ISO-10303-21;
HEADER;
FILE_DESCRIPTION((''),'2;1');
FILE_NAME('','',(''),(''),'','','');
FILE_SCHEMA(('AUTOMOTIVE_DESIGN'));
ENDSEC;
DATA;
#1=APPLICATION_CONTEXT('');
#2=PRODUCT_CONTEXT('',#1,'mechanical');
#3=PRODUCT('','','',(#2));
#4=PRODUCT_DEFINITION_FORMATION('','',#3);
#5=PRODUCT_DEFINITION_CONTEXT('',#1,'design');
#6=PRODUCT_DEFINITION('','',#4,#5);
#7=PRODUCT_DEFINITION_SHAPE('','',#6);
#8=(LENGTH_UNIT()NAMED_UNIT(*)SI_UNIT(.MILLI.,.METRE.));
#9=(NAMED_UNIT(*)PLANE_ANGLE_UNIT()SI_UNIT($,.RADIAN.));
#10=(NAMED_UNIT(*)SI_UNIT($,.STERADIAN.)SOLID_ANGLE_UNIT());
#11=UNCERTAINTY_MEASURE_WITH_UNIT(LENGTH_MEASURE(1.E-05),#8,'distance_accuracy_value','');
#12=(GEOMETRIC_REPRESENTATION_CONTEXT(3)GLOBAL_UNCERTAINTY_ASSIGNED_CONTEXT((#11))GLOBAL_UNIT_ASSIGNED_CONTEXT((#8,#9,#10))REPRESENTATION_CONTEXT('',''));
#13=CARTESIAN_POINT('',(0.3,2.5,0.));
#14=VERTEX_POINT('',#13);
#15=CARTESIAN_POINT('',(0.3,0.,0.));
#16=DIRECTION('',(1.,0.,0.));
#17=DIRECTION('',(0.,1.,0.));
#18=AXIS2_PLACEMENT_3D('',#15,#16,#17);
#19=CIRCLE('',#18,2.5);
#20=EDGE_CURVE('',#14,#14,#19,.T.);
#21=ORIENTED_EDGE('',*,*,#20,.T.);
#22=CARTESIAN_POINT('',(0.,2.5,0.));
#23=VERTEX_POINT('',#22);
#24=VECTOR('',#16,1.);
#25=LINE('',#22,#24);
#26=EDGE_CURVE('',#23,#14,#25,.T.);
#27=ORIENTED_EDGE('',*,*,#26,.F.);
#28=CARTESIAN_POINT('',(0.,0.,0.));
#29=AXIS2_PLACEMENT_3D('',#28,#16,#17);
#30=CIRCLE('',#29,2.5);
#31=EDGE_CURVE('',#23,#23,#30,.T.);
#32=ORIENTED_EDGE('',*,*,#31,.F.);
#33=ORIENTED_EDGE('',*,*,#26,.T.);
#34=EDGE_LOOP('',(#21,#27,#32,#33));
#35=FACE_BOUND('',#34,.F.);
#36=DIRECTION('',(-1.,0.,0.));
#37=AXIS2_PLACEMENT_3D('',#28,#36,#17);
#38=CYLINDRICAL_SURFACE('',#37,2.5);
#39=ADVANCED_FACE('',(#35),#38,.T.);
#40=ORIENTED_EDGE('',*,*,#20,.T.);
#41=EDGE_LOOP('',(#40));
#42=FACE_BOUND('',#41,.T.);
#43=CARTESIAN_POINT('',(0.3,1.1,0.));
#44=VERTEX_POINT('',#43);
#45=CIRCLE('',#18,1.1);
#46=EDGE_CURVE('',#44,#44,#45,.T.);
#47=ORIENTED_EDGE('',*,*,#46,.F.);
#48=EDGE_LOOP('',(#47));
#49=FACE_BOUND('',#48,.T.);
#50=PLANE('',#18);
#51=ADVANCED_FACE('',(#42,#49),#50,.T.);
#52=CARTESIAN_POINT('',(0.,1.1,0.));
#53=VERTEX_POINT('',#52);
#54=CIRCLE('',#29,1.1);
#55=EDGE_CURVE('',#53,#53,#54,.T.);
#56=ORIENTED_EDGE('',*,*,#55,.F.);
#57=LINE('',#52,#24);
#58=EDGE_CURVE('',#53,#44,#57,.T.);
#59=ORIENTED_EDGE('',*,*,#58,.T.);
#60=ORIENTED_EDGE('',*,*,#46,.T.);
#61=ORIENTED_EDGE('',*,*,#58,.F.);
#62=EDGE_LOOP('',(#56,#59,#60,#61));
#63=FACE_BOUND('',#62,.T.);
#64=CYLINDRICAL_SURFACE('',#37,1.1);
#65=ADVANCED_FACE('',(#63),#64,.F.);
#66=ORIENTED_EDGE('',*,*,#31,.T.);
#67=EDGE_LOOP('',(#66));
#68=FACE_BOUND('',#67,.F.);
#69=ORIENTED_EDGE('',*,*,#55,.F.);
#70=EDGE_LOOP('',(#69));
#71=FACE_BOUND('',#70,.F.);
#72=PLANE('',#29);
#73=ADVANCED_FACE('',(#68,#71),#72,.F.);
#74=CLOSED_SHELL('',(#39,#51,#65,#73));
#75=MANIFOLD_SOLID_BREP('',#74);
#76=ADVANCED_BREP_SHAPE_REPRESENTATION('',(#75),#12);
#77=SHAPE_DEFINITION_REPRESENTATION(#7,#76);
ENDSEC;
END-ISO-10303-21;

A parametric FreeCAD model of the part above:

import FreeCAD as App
import Part
import Sketcher
from FreeCAD import Vector
Q = App.Units.Quantity

doc = App.newDocument("Part")
params = doc.addObject("Spreadsheet::Sheet", "Params")
for row, (alias, value) in enumerate([
    ("sketch1_diameter", "5 mm"),
    ("sketch1_diameter2", "2.2 mm"),
    ("pad1_length", "0.3 mm"),
], start=1):
    params.set(f"A{row}", alias)
    params.set(f"B{row}", "=" + value)
    params.setAlias(f"B{row}", alias)

body = doc.addObject("PartDesign::Body", "Body")

# Sketch on YZ plane
sketch1 = body.newObject("Sketcher::SketchObject", "Sketch")
sketch1.AttachmentSupport = (doc.getObject("YZ_Plane"), [""])
sketch1.MapMode = "FlatFace"
sketch1.addGeometry(Part.Circle(Vector(0, 0, 0), Vector(0, 0, 1), 2.5), False)
sketch1.addGeometry(Part.Circle(Vector(0, 0, 0), Vector(0, 0, 1), 1.1), False)
sketch1.addConstraint(Sketcher.Constraint("Coincident", 0, 3, -1, 1))
sketch1.addConstraint(Sketcher.Constraint("Coincident", 1, 3, -1, 1))
sketch1.addConstraint(Sketcher.Constraint("Diameter", 0, Q("5 mm")))
sketch1.addConstraint(Sketcher.Constraint("Diameter", 1, Q("2.2 mm")))
sketch1.setExpression("Constraints[2]", "Params.sketch1_diameter")
sketch1.setExpression("Constraints[3]", "Params.sketch1_diameter2")
pad1 = body.newObject("PartDesign::Pad", "Pad")
pad1.Profile = sketch1
pad1.setExpression("Length", "Params.pad1_length")

doc.recompute()
